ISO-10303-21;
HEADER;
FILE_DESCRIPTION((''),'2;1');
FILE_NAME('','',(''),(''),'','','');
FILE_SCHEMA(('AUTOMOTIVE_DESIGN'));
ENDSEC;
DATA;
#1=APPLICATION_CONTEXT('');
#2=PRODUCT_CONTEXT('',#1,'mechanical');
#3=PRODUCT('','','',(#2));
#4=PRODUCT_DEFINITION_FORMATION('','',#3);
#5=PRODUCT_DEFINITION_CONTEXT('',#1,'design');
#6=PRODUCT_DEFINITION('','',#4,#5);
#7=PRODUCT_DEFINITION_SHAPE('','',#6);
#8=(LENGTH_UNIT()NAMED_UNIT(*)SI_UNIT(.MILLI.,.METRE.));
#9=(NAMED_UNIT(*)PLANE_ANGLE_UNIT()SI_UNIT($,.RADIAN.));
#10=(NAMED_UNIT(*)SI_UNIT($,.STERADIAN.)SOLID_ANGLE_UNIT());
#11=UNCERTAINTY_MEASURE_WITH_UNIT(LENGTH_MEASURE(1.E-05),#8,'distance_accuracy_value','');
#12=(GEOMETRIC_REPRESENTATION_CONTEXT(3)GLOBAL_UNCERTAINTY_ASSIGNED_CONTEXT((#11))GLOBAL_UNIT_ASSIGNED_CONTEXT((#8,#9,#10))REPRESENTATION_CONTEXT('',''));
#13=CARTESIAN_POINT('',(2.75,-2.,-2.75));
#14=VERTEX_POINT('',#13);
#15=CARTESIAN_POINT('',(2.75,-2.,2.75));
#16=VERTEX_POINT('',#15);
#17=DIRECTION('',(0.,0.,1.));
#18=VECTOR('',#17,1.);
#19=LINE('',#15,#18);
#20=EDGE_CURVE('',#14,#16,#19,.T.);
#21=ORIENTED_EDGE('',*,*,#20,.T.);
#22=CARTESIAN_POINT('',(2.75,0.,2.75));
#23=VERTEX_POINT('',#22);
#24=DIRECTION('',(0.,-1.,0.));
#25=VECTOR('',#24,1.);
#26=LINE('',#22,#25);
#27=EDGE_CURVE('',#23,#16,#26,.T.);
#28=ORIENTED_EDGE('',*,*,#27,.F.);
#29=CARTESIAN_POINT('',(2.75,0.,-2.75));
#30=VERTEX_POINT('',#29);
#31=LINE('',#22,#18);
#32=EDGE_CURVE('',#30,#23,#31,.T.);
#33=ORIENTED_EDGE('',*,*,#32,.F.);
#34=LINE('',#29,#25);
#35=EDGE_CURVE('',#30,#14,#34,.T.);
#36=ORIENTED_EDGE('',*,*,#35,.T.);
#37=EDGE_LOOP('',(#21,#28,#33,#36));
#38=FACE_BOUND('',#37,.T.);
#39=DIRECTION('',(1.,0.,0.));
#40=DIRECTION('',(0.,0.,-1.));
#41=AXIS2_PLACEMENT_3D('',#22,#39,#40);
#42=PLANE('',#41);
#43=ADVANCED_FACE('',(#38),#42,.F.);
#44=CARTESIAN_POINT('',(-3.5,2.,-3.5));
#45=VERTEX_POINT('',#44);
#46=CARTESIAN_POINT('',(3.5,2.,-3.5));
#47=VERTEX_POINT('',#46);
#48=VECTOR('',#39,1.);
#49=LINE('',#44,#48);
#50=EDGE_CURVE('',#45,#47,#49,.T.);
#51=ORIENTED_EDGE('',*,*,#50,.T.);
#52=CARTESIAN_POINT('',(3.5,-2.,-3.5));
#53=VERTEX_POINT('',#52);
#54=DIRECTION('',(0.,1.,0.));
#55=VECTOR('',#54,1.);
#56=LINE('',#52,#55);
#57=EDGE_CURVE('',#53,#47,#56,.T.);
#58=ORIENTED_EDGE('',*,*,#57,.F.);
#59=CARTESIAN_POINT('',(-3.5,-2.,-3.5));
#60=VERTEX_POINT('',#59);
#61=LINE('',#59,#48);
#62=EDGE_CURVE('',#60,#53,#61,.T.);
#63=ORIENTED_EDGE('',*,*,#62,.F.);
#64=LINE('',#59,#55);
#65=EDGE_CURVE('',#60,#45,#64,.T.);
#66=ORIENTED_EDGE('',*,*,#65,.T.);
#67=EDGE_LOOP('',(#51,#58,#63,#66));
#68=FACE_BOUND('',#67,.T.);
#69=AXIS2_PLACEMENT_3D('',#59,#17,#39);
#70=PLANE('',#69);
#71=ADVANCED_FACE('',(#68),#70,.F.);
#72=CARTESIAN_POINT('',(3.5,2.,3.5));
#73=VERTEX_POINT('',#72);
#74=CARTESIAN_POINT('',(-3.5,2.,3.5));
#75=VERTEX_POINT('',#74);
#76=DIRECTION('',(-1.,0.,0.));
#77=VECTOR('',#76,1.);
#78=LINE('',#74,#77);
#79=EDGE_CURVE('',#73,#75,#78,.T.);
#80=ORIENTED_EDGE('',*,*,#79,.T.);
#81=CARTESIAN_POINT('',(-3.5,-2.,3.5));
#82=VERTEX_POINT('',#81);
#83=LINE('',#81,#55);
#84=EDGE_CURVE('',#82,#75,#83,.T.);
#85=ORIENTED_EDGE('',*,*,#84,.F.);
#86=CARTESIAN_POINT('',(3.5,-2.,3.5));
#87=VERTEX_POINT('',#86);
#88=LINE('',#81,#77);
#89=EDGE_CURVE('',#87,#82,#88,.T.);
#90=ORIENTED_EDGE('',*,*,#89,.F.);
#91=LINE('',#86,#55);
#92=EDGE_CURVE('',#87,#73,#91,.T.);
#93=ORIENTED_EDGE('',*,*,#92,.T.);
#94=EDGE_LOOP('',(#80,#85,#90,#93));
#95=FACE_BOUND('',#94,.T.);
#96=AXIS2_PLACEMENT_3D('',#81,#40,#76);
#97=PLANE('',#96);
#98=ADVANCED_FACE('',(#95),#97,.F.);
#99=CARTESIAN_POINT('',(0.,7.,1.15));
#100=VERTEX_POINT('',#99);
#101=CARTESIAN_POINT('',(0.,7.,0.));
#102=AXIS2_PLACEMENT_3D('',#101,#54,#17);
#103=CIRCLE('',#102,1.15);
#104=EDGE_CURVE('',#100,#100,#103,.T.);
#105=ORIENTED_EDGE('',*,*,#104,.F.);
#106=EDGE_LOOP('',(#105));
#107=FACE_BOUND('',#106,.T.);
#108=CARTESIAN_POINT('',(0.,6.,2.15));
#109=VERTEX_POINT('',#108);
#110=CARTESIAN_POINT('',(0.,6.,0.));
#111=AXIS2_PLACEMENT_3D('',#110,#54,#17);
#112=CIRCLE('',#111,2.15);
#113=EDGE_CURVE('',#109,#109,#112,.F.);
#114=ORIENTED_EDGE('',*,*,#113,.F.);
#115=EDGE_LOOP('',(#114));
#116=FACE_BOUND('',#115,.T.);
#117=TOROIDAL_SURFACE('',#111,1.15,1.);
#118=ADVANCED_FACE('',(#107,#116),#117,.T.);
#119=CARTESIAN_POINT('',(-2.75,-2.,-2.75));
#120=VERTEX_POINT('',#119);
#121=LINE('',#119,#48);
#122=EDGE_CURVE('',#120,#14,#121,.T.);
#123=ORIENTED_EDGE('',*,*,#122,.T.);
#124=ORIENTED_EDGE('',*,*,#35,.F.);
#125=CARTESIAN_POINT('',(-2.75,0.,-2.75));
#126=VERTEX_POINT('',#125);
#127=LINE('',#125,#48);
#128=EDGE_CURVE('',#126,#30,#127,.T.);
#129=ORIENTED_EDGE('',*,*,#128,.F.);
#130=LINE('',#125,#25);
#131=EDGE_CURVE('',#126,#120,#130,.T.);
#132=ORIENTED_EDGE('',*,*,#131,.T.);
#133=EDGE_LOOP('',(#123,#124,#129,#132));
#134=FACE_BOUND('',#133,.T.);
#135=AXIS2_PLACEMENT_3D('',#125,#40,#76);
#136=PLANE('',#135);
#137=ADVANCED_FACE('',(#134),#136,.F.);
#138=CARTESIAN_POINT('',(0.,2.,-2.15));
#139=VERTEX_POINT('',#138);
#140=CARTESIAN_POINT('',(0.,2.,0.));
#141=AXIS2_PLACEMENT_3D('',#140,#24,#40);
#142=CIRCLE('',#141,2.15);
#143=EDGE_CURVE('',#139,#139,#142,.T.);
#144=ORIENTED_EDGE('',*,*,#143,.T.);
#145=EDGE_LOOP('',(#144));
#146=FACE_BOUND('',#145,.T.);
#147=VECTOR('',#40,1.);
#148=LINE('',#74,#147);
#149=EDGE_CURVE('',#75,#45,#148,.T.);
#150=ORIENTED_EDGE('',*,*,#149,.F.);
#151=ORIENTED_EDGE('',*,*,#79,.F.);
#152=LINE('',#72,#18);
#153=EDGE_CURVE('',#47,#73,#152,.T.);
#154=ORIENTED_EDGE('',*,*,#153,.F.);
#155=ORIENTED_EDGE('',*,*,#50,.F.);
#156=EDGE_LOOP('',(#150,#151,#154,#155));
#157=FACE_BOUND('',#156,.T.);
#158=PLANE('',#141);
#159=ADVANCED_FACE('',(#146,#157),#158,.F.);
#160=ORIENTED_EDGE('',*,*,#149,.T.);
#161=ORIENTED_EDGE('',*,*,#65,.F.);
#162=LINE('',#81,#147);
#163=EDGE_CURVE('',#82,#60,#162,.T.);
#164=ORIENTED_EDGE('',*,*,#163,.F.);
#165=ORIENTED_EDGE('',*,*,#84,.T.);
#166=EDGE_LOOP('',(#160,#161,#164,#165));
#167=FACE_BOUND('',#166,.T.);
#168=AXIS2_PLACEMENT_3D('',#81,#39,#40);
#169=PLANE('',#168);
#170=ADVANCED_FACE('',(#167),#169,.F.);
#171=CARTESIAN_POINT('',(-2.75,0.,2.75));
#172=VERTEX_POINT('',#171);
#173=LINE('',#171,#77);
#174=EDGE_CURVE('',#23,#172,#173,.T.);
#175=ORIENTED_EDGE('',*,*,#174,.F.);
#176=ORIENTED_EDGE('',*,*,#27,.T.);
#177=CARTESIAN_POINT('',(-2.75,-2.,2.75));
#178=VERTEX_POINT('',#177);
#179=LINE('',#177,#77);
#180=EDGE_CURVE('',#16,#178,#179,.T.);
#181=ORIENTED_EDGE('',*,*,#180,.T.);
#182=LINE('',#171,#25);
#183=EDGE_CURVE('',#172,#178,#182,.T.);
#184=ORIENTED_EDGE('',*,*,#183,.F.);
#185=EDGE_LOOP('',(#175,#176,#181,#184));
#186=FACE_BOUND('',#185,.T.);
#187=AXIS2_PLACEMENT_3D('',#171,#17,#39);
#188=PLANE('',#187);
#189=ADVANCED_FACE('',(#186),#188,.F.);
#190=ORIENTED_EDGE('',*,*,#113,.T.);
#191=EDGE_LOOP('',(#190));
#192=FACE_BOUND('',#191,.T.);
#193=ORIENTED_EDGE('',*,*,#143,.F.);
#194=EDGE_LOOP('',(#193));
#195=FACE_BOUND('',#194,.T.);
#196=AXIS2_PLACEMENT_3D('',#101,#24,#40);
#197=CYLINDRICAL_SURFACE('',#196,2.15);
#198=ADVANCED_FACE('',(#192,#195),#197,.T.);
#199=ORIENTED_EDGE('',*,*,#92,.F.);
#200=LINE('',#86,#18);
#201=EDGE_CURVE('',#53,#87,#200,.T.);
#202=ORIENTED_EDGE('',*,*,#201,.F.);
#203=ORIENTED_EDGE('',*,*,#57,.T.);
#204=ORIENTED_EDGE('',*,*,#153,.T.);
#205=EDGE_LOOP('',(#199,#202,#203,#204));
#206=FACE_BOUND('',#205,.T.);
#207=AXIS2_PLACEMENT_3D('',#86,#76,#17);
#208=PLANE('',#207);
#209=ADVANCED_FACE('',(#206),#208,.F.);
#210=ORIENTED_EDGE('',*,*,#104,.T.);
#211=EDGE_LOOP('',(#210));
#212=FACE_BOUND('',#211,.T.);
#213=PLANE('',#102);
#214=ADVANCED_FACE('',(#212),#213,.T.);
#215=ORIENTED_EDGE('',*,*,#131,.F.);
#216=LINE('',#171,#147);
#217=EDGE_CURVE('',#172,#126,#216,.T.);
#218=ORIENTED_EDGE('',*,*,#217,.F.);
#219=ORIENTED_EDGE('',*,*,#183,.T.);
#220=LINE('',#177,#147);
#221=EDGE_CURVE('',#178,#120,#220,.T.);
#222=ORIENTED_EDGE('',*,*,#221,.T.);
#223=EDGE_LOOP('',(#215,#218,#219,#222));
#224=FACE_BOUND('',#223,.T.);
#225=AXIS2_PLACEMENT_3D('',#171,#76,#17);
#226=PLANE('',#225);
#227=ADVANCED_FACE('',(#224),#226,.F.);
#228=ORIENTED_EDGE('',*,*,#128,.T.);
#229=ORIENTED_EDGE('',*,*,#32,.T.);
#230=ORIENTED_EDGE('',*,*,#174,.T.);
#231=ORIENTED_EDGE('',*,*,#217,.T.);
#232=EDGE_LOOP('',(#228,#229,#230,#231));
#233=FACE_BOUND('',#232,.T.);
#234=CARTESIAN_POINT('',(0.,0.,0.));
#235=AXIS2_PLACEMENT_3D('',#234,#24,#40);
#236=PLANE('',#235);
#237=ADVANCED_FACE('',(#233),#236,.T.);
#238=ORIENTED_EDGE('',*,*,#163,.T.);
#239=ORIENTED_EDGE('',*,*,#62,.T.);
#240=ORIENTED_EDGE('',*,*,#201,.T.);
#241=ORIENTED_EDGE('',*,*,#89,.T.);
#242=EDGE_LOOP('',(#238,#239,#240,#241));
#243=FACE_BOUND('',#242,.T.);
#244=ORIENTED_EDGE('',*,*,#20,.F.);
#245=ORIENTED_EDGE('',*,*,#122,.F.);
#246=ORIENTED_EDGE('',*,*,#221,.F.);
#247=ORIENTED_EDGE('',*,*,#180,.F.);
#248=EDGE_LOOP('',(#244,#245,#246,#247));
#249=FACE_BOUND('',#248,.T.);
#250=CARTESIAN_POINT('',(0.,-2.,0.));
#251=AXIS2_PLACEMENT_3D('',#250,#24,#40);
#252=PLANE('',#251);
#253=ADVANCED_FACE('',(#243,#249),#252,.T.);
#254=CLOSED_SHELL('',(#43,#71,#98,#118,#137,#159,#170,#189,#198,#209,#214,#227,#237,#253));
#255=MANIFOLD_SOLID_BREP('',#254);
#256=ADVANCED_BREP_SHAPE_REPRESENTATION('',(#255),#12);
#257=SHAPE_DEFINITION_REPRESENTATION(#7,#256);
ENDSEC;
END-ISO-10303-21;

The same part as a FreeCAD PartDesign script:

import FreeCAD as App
import Part
import Sketcher
from FreeCAD import Vector
Q = App.Units.Quantity


def edges_at(feature, points):
    """Names of the edges that pass closest to the given points."""
    edges = feature.Shape.Edges
    near = lambda p: min(range(len(edges)), key=lambda i: edges[i].distToShape(Part.Vertex(*p))[0])
    return sorted({f"Edge{near(p) + 1}" for p in points})

doc = App.newDocument("Part")
params = doc.addObject("Spreadsheet::Sheet", "Params")
for row, (alias, value) in enumerate([
    ("sketch1_diameter", "4.3 mm"),
    ("pad1_length", "7 mm"),
    ("sketch2_width", "7 mm"),
    ("pad2_length", "2 mm"),
    ("pad2_length2", "2 mm"),
    ("fillet_radius", "1 mm"),
    ("sketch3_width", "5.5 mm"),
    ("pocket1_length", "2 mm"),
], start=1):
    params.set(f"A{row}", alias)
    params.set(f"B{row}", "=" + value)
    params.setAlias(f"B{row}", alias)

body = doc.addObject("PartDesign::Body", "Body")

# Sketch on XZ plane
sketch1 = body.newObject("Sketcher::SketchObject", "Sketch")
sketch1.AttachmentSupport = (doc.getObject("XZ_Plane"), [""])
sketch1.MapMode = "FlatFace"
sketch1.addGeometry(Part.Circle(Vector(0, 0, 0), Vector(0, 0, 1), 2.1), False)
sketch1.addConstraint([
    Sketcher.Constraint("Coincident", 0, 3, -1, 1),
    Sketcher.Constraint("Diameter", 0, Q("4.3 mm")),
])
sketch1.setExpression("Constraints[1]", "Params.sketch1_diameter")
pad1 = body.newObject("PartDesign::Pad", "Pad")
pad1.Profile = sketch1
pad1.setExpression("Length", "Params.pad1_length")
pad1.Reversed = True

# Sketch on XZ plane
sketch2 = body.newObject("Sketcher::SketchObject", "Sketch001")
sketch2.AttachmentSupport = (doc.getObject("XZ_Plane"), [""])
sketch2.MapMode = "FlatFace"
sketch2.addGeometry([
    Part.LineSegment(Vector(-4, 4, 0), Vector(-4, -4, 0)),
    Part.LineSegment(Vector(-4, -4, 0), Vector(4, -4, 0)),
    Part.LineSegment(Vector(4, -4, 0), Vector(4, 4, 0)),
    Part.LineSegment(Vector(4, 4, 0), Vector(-4, 4, 0)),
], False)
sketch2.addConstraint([
    Sketcher.Constraint("Coincident", 0, 2, 1, 1),
    Sketcher.Constraint("Coincident", 1, 2, 2, 1),
    Sketcher.Constraint("Coincident", 2, 2, 3, 1),
    Sketcher.Constraint("Coincident", 3, 2, 0, 1),
    Sketcher.Constraint("Vertical", 0),
    Sketcher.Constraint("Horizontal", 1),
    Sketcher.Constraint("Vertical", 2),
    Sketcher.Constraint("Horizontal", 3),
    Sketcher.Constraint("Symmetric", 0, 2, 2, 2, -1, 1),
    Sketcher.Constraint("Equal", 3, 0),
    Sketcher.Constraint("DistanceX", 1, 1, 1, 2, Q("7 mm")),
])
sketch2.setExpression("Constraints[10]", "Params.sketch2_width")
pad2 = body.newObject("PartDesign::Pad", "Pad001")
pad2.Profile = sketch2
pad2.Type = "TwoLengths"
pad2.setExpression("Length", "Params.pad2_length")
pad2.setExpression("Length2", "Params.pad2_length2")
doc.recompute()

fillet = body.newObject("PartDesign::Fillet", "Fillet")
fillet.Base = (pad2, edges_at(pad2, [(-2.15, 7, 0)]))
fillet.setExpression("Radius", "Params.fillet_radius")

# Sketch on XZ plane
sketch3 = body.newObject("Sketcher::SketchObject", "Sketch002")
sketch3.AttachmentSupport = (doc.getObject("XZ_Plane"), [""])
sketch3.MapMode = "FlatFace"
sketch3.AttachmentOffset = App.Placement(Vector(0, 0, 2), App.Rotation())
sketch3.addGeometry([
    Part.LineSegment(Vector(-3, 3, 0), Vector(-3, -3, 0)),
    Part.LineSegment(Vector(-3, -3, 0), Vector(3, -3, 0)),
    Part.LineSegment(Vector(3, -3, 0), Vector(3, 3, 0)),
    Part.LineSegment(Vector(3, 3, 0), Vector(-3, 3, 0)),
], False)
sketch3.addConstraint([
    Sketcher.Constraint("Coincident", 0, 2, 1, 1),
    Sketcher.Constraint("Coincident", 1, 2, 2, 1),
    Sketcher.Constraint("Coincident", 2, 2, 3, 1),
    Sketcher.Constraint("Coincident", 3, 2, 0, 1),
    Sketcher.Constraint("Vertical", 0),
    Sketcher.Constraint("Horizontal", 1),
    Sketcher.Constraint("Vertical", 2),
    Sketcher.Constraint("Horizontal", 3),
    Sketcher.Constraint("Symmetric", 0, 2, 2, 2, -1, 1),
    Sketcher.Constraint("Equal", 3, 0),
    Sketcher.Constraint("DistanceX", 1, 1, 1, 2, Q("5.5 mm")),
])
sketch3.setExpression("Constraints[10]", "Params.sketch3_width")
pocket1 = body.newObject("PartDesign::Pocket", "Pocket")
pocket1.Profile = sketch3
pocket1.setExpression("Length", "Params.pocket1_length")

doc.recompute()
